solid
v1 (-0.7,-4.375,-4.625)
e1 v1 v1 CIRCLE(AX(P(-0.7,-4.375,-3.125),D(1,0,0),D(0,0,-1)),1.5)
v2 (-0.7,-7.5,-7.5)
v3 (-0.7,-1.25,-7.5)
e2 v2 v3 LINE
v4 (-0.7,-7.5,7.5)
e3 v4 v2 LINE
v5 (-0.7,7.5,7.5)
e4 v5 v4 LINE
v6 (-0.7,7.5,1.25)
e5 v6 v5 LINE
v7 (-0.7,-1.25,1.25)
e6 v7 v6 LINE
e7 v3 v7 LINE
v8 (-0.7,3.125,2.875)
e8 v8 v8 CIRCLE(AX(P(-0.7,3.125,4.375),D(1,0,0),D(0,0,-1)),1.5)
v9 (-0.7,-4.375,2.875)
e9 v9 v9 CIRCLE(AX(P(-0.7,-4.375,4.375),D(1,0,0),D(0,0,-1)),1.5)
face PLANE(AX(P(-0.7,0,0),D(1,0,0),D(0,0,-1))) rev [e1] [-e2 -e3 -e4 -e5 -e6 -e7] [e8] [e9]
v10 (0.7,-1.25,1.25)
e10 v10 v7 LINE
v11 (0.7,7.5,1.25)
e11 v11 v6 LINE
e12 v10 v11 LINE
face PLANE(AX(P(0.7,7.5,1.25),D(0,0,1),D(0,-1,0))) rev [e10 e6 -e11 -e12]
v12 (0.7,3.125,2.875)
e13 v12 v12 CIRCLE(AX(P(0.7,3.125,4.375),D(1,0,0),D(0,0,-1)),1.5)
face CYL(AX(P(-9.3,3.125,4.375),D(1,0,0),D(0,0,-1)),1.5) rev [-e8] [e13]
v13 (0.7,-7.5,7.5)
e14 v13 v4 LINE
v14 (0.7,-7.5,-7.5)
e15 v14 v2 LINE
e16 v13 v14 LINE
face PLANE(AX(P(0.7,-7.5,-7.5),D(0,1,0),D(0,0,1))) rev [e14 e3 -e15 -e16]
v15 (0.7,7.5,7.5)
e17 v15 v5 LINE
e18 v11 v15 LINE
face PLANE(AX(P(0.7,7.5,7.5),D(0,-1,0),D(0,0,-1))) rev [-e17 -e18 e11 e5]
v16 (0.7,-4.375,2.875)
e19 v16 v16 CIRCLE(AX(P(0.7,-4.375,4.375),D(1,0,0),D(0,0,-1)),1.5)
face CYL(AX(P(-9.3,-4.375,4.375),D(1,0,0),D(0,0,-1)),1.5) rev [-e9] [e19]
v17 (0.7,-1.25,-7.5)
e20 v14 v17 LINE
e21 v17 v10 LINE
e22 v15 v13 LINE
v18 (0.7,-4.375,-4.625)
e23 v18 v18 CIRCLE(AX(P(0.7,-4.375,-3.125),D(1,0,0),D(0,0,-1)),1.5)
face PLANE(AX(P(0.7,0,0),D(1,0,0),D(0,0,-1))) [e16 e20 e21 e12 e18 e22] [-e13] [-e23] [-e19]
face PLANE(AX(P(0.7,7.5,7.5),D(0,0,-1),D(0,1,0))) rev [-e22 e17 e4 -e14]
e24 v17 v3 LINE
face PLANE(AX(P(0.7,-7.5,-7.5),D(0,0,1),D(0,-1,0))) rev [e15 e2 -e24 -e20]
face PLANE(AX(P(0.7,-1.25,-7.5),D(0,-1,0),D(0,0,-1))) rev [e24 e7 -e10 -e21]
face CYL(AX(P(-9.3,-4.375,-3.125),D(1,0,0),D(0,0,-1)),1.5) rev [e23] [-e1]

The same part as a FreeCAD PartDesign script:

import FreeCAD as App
import Part
import Sketcher

V = App.Vector
Q = App.Units.Quantity

doc = App.newDocument("Part")
params = doc.addObject("Spreadsheet::Sheet", "Params")
for row, (alias, value) in enumerate([
    ("sketch1_width", "15 mm"),
    ("sketch1_width2", "6.25 mm"),
    ("pad1_length", "1.4 mm"),
    ("sketch2_diameter", "3 mm"),
    ("pocket1_length", "20 mm"),
], start=1):
    params.set(f"A{row}", alias)
    params.set(f"B{row}", "=" + value)
    params.setAlias(f"B{row}", alias)

body = doc.addObject("PartDesign::Body", "Body")

# Sketch on YZ plane
sketch1 = body.newObject("Sketcher::SketchObject", "Sketch")
sketch1.AttachmentSupport = (doc.getObject("YZ_Plane"), [""])
sketch1.MapMode = "FlatFace"
sketch1.addGeometry([
    Part.LineSegment(V(8, 8, 0), V(-8, 8, 0)),  # 0
    Part.LineSegment(V(-8, 8, 0), V(-8, -8, 0)),  # 1
    Part.LineSegment(V(-8, -8, 0), V(-1, -8, 0)),  # 2
    Part.LineSegment(V(-1, -8, 0), V(-1, 1, 0)),  # 3
    Part.LineSegment(V(-1, 1, 0), V(8, 1, 0)),  # 4
    Part.LineSegment(V(8, 1, 0), V(8, 8, 0)),  # 5
], False)
sketch1.addConstraint([
    Sketcher.Constraint("Coincident", 0, 2, 1, 1),
    Sketcher.Constraint("Coincident", 1, 2, 2, 1),
    Sketcher.Constraint("Coincident", 2, 2, 3, 1),
    Sketcher.Constraint("Coincident", 3, 2, 4, 1),
    Sketcher.Constraint("Coincident", 4, 2, 5, 1),
    Sketcher.Constraint("Coincident", 5, 2, 0, 1),
    Sketcher.Constraint("Horizontal", 0),
    Sketcher.Constraint("Vertical", 1),
    Sketcher.Constraint("Horizontal", 2),
    Sketcher.Constraint("Vertical", 3),
    Sketcher.Constraint("Horizontal", 4),
    Sketcher.Constraint("Vertical", 5),
    Sketcher.Constraint("Symmetric", 1, 2, 5, 2, -1, 1),
    Sketcher.Constraint("Equal", 0, 1),
    Sketcher.Constraint("Equal", 4, 3),
    Sketcher.Constraint("DistanceX", 0, 2, 0, 1, Q("15 mm")),
    Sketcher.Constraint("DistanceX", 2, 1, 2, 2, Q("6.25 mm")),
])
sketch1.setExpression("Constraints[15]", "Params.sketch1_width")
sketch1.setExpression("Constraints[16]", "Params.sketch1_width2")
pad1 = body.newObject("PartDesign::Pad", "Pad")
pad1.Profile = sketch1
pad1.setExpression("Length", "Params.pad1_length")
pad1.Midplane = True

# Sketch on YZ plane
sketch2 = body.newObject("Sketcher::SketchObject", "Sketch001")
sketch2.AttachmentSupport = (doc.getObject("YZ_Plane"), [""])
sketch2.MapMode = "FlatFace"
sketch2.AttachmentOffset = App.Placement(V(0, 0, 0.7), App.Rotation())
sketch2.addGeometry([
    Part.Circle(V(-4.4, 4.4, 0), V(0, 0, 1), 1.5),
    Part.Circle(V(3.1, 4.4, 0), V(0, 0, 1), 1.5),
    Part.Circle(V(-4.4, -3.1, 0), V(0, 0, 1), 1.5),
], False)
sketch2.addConstraint([
    Sketcher.Constraint("Equal", 0, 1),
    Sketcher.Constraint("Equal", 1, 2),
    Sketcher.Constraint("Horizontal", 0, 3, 1, 3),
    Sketcher.Constraint("Vertical", 0, 3, 2, 3),
    Sketcher.Constraint("Diameter", 0, Q("3 mm")),
    Sketcher.Constraint("DistanceX", 0, 3, 1, 3, Q("7.5 mm")),
    Sketcher.Constraint("DistanceY", 2, 3, 0, 3, Q("7.5 mm")),
    Sketcher.Constraint("DistanceX", 0, 3, -1, 1, Q("4.375 mm")),
    Sketcher.Constraint("DistanceY", -1, 1, 0, 3, Q("4.375 mm")),
])
sketch2.setExpression("Constraints[4]", "Params.sketch2_diameter")
pocket1 = body.newObject("PartDesign::Pocket", "Pocket")
pocket1.Profile = sketch2
pocket1.setExpression("Length", "Params.pocket1_length")
pocket1.Midplane = True

doc.recompute()
